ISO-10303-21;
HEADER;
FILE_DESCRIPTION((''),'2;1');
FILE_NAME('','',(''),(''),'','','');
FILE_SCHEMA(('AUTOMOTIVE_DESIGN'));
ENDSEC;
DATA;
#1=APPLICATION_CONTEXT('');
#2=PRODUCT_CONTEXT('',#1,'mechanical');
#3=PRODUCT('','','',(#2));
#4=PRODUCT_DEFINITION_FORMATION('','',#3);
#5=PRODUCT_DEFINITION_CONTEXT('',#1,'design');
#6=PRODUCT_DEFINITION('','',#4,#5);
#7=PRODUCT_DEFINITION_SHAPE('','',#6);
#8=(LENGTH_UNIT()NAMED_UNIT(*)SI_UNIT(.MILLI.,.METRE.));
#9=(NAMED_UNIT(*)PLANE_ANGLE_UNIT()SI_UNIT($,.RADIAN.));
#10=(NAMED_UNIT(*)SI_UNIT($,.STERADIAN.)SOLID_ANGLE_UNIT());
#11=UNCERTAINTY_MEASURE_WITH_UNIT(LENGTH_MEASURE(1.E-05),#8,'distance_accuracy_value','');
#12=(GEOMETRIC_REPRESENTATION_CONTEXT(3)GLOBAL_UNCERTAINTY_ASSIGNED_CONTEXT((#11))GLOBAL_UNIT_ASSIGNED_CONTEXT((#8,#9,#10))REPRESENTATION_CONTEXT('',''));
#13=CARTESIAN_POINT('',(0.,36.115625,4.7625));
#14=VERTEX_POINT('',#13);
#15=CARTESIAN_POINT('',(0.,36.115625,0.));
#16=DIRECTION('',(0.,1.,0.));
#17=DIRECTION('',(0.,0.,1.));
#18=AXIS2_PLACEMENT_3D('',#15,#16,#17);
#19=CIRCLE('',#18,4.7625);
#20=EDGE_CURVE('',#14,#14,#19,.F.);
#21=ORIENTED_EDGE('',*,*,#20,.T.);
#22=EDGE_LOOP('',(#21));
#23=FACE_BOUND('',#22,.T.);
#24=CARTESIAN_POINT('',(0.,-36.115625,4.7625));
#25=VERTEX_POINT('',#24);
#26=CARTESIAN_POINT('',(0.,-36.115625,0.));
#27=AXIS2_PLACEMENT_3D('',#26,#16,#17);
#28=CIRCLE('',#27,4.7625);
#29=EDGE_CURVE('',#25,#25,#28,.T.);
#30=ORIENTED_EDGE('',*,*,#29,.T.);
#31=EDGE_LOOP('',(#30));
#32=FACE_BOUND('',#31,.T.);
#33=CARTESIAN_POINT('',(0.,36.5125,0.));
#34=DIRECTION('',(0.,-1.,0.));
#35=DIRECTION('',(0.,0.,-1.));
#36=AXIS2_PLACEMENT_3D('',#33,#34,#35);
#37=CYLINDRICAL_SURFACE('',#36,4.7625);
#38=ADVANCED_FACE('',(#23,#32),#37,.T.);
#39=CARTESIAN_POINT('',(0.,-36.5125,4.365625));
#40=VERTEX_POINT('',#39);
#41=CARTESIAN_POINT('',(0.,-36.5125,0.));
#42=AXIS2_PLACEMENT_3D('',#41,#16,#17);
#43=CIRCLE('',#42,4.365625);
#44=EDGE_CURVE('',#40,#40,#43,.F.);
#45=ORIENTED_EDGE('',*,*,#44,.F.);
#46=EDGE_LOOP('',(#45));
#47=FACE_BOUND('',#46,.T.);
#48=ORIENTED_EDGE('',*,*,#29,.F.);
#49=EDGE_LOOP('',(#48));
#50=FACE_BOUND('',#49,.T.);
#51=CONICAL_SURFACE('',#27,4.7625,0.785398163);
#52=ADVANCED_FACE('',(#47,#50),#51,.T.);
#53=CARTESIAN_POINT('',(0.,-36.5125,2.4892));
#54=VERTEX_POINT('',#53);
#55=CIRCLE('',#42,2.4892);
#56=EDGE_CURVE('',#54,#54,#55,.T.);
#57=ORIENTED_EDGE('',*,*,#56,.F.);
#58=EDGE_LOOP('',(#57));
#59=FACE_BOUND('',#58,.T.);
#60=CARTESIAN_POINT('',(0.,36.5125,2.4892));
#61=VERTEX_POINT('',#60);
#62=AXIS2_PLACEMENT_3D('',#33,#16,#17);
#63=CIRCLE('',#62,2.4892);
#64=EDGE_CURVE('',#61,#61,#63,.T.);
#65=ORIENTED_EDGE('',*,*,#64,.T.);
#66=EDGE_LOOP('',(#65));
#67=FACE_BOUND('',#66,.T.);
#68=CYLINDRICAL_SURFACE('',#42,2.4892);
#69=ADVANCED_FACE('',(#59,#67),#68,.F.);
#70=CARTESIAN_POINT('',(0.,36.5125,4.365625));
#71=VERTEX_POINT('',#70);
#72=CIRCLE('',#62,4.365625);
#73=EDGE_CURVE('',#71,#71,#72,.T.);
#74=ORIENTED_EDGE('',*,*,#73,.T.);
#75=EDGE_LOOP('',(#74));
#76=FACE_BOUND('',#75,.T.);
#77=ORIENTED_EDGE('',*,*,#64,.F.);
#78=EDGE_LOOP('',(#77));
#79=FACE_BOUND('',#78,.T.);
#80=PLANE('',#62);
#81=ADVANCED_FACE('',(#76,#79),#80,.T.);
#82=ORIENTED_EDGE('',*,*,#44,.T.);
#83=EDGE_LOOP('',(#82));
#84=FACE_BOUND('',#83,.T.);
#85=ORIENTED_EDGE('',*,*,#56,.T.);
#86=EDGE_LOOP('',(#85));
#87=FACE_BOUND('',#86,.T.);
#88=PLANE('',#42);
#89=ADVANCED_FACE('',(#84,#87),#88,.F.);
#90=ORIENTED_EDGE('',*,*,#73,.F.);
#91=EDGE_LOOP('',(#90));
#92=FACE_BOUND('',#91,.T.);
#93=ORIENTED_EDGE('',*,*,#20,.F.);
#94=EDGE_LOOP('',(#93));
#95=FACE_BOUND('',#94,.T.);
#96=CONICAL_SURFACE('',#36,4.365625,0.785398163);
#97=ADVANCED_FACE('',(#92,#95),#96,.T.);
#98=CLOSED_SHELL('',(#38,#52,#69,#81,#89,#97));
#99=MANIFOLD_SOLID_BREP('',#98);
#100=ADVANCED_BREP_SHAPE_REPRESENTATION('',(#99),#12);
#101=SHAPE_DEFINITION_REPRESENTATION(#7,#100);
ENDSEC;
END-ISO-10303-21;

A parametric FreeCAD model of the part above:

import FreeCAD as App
import Part
import Sketcher
Q = App.Units.Quantity


def edges_at(feature, points):
    """Names of the edges that pass closest to the given points."""
    edges = feature.Shape.Edges
    near = lambda p: min(range(len(edges)), key=lambda i: edges[i].distToShape(Part.Vertex(*p))[0])
    return sorted({f"Edge{near(p) + 1}" for p in points})

doc = App.newDocument("Part")
body = doc.addObject("PartDesign::Body", "Body")

# Sketch on XZ plane
sketch1 = body.newObject("Sketcher::SketchObject", "Sketch")
sketch1.AttachmentSupport = (doc.getObject("XZ_Plane"), [""])
sketch1.MapMode = "FlatFace"
sketch1.addGeometry(Part.Circle(App.Vector(0, 0, 0), App.Vector(0, 0, 1), 4.8), False)
sketch1.addConstraint([
    Sketcher.Constraint("Coincident", 0, 3, -1, 1),
    Sketcher.Constraint("Diameter", 0, Q("0.375 in")),
])
pad1 = body.newObject("PartDesign::Pad", "Pad")
pad1.Profile = sketch1
pad1.Length = Q("2.875 in")
pad1.Midplane = True
doc.recompute()

chamfer = body.newObject("PartDesign::Chamfer", "Chamfer")
chamfer.Base = (pad1, edges_at(pad1, [(-4.763, -36.513, 0), (-4.763, 36.513, 0)]))
chamfer.Size = Q("0.015625 in")

# Sketch on XZ plane
sketch2 = body.newObject("Sketcher::SketchObject", "Sketch001")
sketch2.AttachmentSupport = (doc.getObject("XZ_Plane"), [""])
sketch2.MapMode = "FlatFace"
sketch2.addGeometry(Part.Circle(App.Vector(0, 0, 0), App.Vector(0, 0, 1), 2.5), False)
sketch2.addConstraint([
    Sketcher.Constraint("Coincident", 0, 3, -1, 1),
    Sketcher.Constraint("Diameter", 0, Q("0.196 in")),
])
pocket1 = body.newObject("PartDesign::Pocket", "Pocket")
pocket1.Profile = sketch2
pocket1.Type = "ThroughAll"
pocket1.Midplane = True

doc.recompute()
